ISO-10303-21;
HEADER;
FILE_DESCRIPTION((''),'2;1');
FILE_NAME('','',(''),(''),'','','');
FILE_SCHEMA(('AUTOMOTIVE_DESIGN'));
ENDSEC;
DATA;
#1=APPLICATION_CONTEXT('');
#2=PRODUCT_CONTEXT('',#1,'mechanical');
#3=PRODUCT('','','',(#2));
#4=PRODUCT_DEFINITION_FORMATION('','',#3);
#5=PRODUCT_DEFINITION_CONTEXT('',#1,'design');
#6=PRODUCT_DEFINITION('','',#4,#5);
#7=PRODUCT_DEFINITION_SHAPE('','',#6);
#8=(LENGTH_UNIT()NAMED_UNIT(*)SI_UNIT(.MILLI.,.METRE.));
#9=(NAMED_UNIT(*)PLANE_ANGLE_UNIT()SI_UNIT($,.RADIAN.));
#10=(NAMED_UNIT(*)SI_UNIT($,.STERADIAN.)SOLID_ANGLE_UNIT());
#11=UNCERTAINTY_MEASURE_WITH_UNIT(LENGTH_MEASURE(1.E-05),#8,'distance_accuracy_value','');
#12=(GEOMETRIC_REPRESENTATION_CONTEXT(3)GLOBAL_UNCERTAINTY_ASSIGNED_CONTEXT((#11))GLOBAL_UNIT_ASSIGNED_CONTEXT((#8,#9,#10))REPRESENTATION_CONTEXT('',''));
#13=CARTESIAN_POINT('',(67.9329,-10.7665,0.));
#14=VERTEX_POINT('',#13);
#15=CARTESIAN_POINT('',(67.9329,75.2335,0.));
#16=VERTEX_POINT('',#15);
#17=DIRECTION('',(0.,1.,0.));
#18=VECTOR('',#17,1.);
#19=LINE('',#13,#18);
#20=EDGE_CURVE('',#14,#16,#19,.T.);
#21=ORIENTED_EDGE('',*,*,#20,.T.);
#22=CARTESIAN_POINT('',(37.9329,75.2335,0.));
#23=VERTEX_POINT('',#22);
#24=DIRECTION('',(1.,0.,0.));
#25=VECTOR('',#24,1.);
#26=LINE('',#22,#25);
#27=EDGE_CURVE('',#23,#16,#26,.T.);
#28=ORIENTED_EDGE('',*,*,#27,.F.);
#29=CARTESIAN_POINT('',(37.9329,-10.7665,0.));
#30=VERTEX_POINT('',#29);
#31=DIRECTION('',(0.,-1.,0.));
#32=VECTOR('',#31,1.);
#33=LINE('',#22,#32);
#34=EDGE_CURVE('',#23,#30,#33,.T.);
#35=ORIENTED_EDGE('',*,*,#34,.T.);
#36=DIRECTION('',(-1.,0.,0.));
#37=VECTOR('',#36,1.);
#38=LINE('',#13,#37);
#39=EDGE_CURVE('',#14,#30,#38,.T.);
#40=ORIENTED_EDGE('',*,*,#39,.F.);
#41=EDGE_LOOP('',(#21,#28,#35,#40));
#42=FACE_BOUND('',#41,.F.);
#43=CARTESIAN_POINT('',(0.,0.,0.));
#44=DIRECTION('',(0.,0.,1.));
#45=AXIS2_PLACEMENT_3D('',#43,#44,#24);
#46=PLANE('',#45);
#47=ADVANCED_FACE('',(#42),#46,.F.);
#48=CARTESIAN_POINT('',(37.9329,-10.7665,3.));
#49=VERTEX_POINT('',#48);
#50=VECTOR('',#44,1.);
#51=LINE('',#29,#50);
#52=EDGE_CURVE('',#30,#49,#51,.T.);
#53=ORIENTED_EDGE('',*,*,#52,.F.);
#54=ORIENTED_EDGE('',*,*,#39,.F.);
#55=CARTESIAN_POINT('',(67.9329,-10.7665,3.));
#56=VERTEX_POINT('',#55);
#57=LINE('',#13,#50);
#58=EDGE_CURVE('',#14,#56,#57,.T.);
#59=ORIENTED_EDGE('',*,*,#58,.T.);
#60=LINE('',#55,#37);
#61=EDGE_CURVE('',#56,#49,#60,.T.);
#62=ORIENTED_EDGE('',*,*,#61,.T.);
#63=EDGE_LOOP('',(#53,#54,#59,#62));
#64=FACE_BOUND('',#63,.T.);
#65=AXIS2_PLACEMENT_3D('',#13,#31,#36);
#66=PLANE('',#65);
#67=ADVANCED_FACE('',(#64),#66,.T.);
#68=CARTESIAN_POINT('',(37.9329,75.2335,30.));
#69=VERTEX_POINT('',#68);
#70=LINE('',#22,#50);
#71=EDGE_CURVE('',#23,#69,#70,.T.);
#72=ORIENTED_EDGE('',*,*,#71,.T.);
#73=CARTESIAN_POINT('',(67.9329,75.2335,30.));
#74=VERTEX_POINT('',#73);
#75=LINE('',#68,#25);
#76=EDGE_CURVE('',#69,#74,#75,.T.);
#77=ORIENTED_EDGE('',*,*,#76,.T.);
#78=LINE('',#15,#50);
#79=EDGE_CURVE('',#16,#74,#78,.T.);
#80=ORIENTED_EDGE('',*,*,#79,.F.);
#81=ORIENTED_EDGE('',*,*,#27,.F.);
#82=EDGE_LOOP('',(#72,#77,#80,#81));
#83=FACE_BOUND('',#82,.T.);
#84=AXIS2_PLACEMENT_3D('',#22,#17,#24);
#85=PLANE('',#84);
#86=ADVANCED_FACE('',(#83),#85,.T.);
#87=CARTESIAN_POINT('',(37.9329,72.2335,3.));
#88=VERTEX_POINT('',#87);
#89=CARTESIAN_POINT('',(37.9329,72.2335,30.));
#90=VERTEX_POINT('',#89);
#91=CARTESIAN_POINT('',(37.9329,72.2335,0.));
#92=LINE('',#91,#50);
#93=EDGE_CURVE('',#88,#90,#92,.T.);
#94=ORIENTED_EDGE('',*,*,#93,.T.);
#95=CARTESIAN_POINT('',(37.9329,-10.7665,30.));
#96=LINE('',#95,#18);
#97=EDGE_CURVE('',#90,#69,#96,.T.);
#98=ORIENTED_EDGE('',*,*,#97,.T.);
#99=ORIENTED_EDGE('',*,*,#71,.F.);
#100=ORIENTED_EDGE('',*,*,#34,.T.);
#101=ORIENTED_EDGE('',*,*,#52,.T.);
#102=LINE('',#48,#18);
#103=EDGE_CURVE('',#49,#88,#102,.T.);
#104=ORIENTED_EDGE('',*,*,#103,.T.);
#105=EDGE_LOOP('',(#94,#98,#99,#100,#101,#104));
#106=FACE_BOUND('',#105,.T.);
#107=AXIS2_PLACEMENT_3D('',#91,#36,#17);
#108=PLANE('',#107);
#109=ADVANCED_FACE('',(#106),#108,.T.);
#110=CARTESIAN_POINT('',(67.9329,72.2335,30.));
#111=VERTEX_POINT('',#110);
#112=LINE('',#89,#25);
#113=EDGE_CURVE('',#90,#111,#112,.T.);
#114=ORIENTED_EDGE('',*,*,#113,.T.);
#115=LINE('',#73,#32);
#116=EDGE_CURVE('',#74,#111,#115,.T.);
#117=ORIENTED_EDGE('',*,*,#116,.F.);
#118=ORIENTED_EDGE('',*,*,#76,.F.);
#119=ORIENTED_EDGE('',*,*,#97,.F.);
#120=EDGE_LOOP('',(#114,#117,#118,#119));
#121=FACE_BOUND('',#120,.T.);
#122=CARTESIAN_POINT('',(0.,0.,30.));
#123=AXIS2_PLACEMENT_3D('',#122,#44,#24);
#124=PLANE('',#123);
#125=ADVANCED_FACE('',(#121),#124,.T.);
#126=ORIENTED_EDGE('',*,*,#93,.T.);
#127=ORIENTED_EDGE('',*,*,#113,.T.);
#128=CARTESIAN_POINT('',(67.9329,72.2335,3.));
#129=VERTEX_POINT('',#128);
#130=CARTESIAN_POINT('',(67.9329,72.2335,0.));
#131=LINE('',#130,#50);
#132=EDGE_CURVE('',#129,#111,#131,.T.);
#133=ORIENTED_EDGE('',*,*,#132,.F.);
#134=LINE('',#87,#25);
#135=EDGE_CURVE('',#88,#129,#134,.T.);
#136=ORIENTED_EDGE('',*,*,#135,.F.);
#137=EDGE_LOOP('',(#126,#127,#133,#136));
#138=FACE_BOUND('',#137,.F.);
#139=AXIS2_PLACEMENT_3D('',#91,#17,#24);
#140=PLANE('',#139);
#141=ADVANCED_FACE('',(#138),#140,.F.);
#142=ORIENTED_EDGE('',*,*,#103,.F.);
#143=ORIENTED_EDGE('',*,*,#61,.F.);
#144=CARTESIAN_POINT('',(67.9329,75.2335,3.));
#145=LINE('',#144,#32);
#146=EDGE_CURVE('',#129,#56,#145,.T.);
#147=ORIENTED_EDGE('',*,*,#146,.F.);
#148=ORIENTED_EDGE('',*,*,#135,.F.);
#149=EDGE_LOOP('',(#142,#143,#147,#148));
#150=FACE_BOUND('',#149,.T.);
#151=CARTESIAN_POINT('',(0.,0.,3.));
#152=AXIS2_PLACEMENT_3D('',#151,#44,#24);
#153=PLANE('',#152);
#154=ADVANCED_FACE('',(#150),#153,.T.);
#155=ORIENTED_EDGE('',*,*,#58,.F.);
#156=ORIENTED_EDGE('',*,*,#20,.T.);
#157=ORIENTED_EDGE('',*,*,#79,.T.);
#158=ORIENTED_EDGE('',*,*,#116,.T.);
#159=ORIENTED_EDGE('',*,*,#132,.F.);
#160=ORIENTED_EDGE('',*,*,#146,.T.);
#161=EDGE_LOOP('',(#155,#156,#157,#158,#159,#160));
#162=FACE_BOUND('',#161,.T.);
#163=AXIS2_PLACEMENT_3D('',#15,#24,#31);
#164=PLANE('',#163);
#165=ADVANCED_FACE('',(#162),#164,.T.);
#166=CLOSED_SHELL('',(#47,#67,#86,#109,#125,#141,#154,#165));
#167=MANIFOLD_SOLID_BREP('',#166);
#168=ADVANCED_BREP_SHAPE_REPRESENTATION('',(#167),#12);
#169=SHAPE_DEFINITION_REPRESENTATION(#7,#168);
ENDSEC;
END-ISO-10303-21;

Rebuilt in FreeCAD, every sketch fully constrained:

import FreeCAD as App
import Part
import Sketcher
from FreeCAD import Vector
Q = App.Units.Quantity

doc = App.newDocument("Part")
body = doc.addObject("PartDesign::Body", "Body")

sketch1 = body.newObject("Sketcher::SketchObject", "Sketch")
sketch1.AttachmentSupport = (doc.getObject("XY_Plane"), [""])
sketch1.MapMode = "FlatFace"
sketch1.addGeometry(Part.LineSegment(Vector(68, 72, 0), Vector(38, 72, 0)), False)
sketch1.addGeometry(Part.LineSegment(Vector(38, 72, 0), Vector(38, -11, 0)), False)
sketch1.addGeometry(Part.LineSegment(Vector(38, -11, 0), Vector(68, -11, 0)), False)
sketch1.addGeometry(Part.LineSegment(Vector(68, -11, 0), Vector(68, 72, 0)), False)
sketch1.addConstraint(Sketcher.Constraint("Coincident", 0, 2, 1, 1))
sketch1.addConstraint(Sketcher.Constraint("Coincident", 1, 2, 2, 1))
sketch1.addConstraint(Sketcher.Constraint("Coincident", 2, 2, 3, 1))
sketch1.addConstraint(Sketcher.Constraint("Coincident", 3, 2, 0, 1))
sketch1.addConstraint(Sketcher.Constraint("Horizontal", 0))
sketch1.addConstraint(Sketcher.Constraint("Vertical", 1))
sketch1.addConstraint(Sketcher.Constraint("Horizontal", 2))
sketch1.addConstraint(Sketcher.Constraint("Vertical", 3))
sketch1.addConstraint(Sketcher.Constraint("DistanceX", 0, 2, 0, 1, Q("30 mm")))
sketch1.addConstraint(Sketcher.Constraint("DistanceY", 1, 2, 1, 1, Q("83 mm")))
sketch1.addConstraint(Sketcher.Constraint("DistanceX", -1, 1, 0, 2, Q("37.933 mm")))
sketch1.addConstraint(Sketcher.Constraint("DistanceY", -1, 1, 0, 2, Q("72.2335 mm")))
pad1 = body.newObject("PartDesign::Pad", "Pad")
pad1.Profile = sketch1
pad1.Length = 3

sketch2 = body.newObject("Sketcher::SketchObject", "Sketch001")
sketch2.AttachmentSupport = (doc.getObject("XY_Plane"), [""])
sketch2.MapMode = "FlatFace"
sketch2.addGeometry(Part.LineSegment(Vector(67.9, 75.2, 0), Vector(37.9, 75.2, 0)), False)
sketch2.addGeometry(Part.LineSegment(Vector(37.9, 75.2, 0), Vector(37.9, 72.2, 0)), False)
sketch2.addGeometry(Part.LineSegment(Vector(37.9, 72.2, 0), Vector(67.9, 72.2, 0)), False)
sketch2.addGeometry(Part.LineSegment(Vector(67.9, 72.2, 0), Vector(67.9, 75.2, 0)), False)
sketch2.addConstraint(Sketcher.Constraint("Coincident", 0, 2, 1, 1))
sketch2.addConstraint(Sketcher.Constraint("Coincident", 1, 2, 2, 1))
sketch2.addConstraint(Sketcher.Constraint("Coincident", 2, 2, 3, 1))
sketch2.addConstraint(Sketcher.Constraint("Coincident", 3, 2, 0, 1))
sketch2.addConstraint(Sketcher.Constraint("Horizontal", 0))
sketch2.addConstraint(Sketcher.Constraint("Vertical", 1))
sketch2.addConstraint(Sketcher.Constraint("Horizontal", 2))
sketch2.addConstraint(Sketcher.Constraint("Vertical", 3))
sketch2.addConstraint(Sketcher.Constraint("DistanceX", 0, 2, 0, 1, Q("30 mm")))
sketch2.addConstraint(Sketcher.Constraint("DistanceY", 1, 2, 1, 1, Q("3 mm")))
sketch2.addConstraint(Sketcher.Constraint("DistanceX", -1, 1, 0, 2, Q("37.933 mm")))
sketch2.addConstraint(Sketcher.Constraint("DistanceY", -1, 1, 0, 2, Q("75.2335 mm")))
pad2 = body.newObject("PartDesign::Pad", "Pad001")
pad2.Profile = sketch2
pad2.Length = 30

doc.recompute()
